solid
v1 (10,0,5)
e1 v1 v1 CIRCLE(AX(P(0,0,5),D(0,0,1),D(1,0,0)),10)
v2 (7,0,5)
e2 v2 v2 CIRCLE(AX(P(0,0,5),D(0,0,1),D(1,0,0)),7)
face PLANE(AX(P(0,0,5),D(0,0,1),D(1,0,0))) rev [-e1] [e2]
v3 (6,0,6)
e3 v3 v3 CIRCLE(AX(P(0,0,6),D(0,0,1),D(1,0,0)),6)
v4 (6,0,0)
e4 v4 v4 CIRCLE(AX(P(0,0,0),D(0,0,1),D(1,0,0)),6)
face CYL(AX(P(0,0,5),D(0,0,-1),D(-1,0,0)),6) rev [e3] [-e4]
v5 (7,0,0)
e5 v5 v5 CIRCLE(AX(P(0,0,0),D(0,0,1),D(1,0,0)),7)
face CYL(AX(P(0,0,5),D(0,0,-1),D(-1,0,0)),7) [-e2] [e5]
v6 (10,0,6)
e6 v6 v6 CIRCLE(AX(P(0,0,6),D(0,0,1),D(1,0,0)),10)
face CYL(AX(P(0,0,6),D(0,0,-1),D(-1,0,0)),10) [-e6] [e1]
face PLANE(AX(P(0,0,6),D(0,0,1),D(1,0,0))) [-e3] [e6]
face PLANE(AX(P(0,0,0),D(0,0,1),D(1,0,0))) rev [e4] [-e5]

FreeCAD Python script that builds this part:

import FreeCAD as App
import Part
import Sketcher
from FreeCAD import Vector
Q = App.Units.Quantity

doc = App.newDocument("Part")
body = doc.addObject("PartDesign::Body", "Body")

sketch1 = body.newObject("Sketcher::SketchObject", "Sketch")
sketch1.AttachmentSupport = (doc.getObject("XY_Plane"), [""])
sketch1.MapMode = "FlatFace"
sketch1.addGeometry([
    Part.Circle(Vector(0, 0, 0), Vector(0, 0, 1), 7),
    Part.Circle(Vector(0, 0, 0), Vector(0, 0, 1), 6),
], False)
sketch1.addConstraint([
    Sketcher.Constraint("Coincident", 0, 3, -1, 1),
    Sketcher.Constraint("Coincident", 1, 3, -1, 1),
    Sketcher.Constraint("Diameter", 0, Q("14 mm")),
    Sketcher.Constraint("Diameter", 1, Q("12 mm")),
])
pad1 = body.newObject("PartDesign::Pad", "Pad")
pad1.Profile = sketch1
pad1.Length = 5

sketch2 = body.newObject("Sketcher::SketchObject", "Sketch001")
sketch2.AttachmentSupport = (doc.getObject("XY_Plane"), [""])
sketch2.MapMode = "FlatFace"
sketch2.AttachmentOffset = App.Placement(Vector(0, 0, 5), App.Rotation())
sketch2.addGeometry([
    Part.Circle(Vector(0, 0, 0), Vector(0, 0, 1), 10),
    Part.Circle(Vector(0, 0, 0), Vector(0, 0, 1), 6),
], False)
sketch2.addConstraint([
    Sketcher.Constraint("Coincident", 0, 3, -1, 1),
    Sketcher.Constraint("Coincident", 1, 3, -1, 1),
    Sketcher.Constraint("Diameter", 0, Q("20 mm")),
    Sketcher.Constraint("Diameter", 1, Q("12 mm")),
])
pad2 = body.newObject("PartDesign::Pad", "Pad001")
pad2.Profile = sketch2
pad2.Length = 1

doc.recompute()
